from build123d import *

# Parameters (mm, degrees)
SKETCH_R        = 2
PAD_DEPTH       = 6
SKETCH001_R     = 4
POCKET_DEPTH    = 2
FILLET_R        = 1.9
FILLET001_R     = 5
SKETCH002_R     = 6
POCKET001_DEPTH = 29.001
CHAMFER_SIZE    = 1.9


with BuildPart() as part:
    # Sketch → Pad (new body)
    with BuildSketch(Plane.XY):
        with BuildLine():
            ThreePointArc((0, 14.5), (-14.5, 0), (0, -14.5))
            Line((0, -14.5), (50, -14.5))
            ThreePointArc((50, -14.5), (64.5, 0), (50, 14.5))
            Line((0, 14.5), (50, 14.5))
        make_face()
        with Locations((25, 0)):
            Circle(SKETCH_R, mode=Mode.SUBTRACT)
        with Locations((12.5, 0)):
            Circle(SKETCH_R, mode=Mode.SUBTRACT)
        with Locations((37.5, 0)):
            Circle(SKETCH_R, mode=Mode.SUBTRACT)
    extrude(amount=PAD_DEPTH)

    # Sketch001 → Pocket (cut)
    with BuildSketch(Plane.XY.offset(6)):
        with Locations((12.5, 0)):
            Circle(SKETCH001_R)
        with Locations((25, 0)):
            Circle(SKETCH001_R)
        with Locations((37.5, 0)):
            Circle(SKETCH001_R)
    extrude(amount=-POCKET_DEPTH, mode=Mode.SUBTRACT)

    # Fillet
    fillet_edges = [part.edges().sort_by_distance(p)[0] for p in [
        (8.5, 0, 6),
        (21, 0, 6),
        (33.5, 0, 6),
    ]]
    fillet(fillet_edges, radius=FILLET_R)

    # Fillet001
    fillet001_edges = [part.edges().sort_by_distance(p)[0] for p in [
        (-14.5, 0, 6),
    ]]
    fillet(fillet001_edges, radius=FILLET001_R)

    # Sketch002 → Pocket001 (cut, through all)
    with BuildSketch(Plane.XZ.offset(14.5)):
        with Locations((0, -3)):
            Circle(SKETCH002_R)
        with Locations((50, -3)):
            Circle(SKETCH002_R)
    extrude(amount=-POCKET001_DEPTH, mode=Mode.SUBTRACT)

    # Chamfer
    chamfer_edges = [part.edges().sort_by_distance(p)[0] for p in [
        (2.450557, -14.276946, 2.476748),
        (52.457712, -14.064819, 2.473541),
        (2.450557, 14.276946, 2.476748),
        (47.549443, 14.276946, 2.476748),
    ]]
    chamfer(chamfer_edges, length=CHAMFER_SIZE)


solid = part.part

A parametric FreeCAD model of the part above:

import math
import FreeCAD as App
import Part
import Sketcher

V = App.Vector
Q = App.Units.Quantity


def edges_at(feature, points):
    """Names of the edges that pass closest to the given points."""
    edges = feature.Shape.Edges
    near = lambda p: min(range(len(edges)), key=lambda i: edges[i].distToShape(Part.Vertex(*p))[0])
    return sorted({f"Edge{near(p) + 1}" for p in points})

doc = App.newDocument("Part")
body = doc.addObject("PartDesign::Body", "Body")

# Sketch on XY plane
sketch1 = body.newObject("Sketcher::SketchObject", "Sketch")
sketch1.AttachmentSupport = (doc.getObject("XY_Plane"), [""])
sketch1.MapMode = "FlatFace"
sketch1.addGeometry(Part.ArcOfCircle(Part.Circle(V(0, 0, 0), V(0, 0, 1), 14.5), math.radians(90), math.radians(270)), False)
sketch1.addGeometry(Part.LineSegment(V(0, -14.5, 0), V(50, -14.5, 0)), False)
sketch1.addGeometry(Part.ArcOfCircle(Part.Circle(V(50, 0, 0), V(0, 0, 1), 14.5), math.radians(-90), math.radians(90)), False)
sketch1.addGeometry(Part.LineSegment(V(50, 14.5, 0), V(0, 14.5, 0)), False)
sketch1.addGeometry(Part.Circle(V(12.5, 0, 0), V(0, 0, 1), 2), False)
sketch1.addGeometry(Part.Circle(V(25, 0, 0), V(0, 0, 1), 2), False)
sketch1.addGeometry(Part.Circle(V(37.5, 0, 0), V(0, 0, 1), 2), False)
sketch1.addConstraint(Sketcher.Constraint("Tangent", 0, 2, 1, 1))
sketch1.addConstraint(Sketcher.Constraint("Tangent", 1, 2, 2, 1))
sketch1.addConstraint(Sketcher.Constraint("Tangent", 2, 2, 3, 1))
sketch1.addConstraint(Sketcher.Constraint("Tangent", 3, 2, 0, 1))
sketch1.addConstraint(Sketcher.Constraint("Horizontal", 1))
sketch1.addConstraint(Sketcher.Constraint("Horizontal", 3))
sketch1.addConstraint(Sketcher.Constraint("Coincident", 0, 3, -1, 1))
sketch1.addConstraint(Sketcher.Constraint("Equal", 4, 5))
sketch1.addConstraint(Sketcher.Constraint("Equal", 5, 6))
sketch1.addConstraint(Sketcher.Constraint("PointOnObject", 4, 3, -1))
sketch1.addConstraint(Sketcher.Constraint("PointOnObject", 5, 3, -1))
sketch1.addConstraint(Sketcher.Constraint("PointOnObject", 6, 3, -1))
sketch1.addConstraint(Sketcher.Constraint("Diameter", 4, Q("4 mm")))
sketch1.addConstraint(Sketcher.Constraint("Radius", 0, Q("14.5 mm")))
sketch1.addConstraint(Sketcher.Constraint("DistanceX", 1, 1, 1, 2, Q("50 mm")))
sketch1.addConstraint(Sketcher.Constraint("DistanceX", -1, 1, 5, 3, Q("25 mm")))
sketch1.addConstraint(Sketcher.Constraint("DistanceX", 4, 3, 6, 3, Q("25 mm")))
sketch1.addConstraint(Sketcher.Constraint("DistanceX", -1, 1, 4, 3, Q("12.5 mm")))
pad1 = body.newObject("PartDesign::Pad", "Pad")
pad1.Profile = sketch1
pad1.Length = 6

# Sketch on XY plane
sketch2 = body.newObject("Sketcher::SketchObject", "Sketch001")
sketch2.AttachmentSupport = (doc.getObject("XY_Plane"), [""])
sketch2.MapMode = "FlatFace"
sketch2.AttachmentOffset = App.Placement(V(0, 0, 6), App.Rotation())
sketch2.addGeometry(Part.Circle(V(12.5, 0, 0), V(0, 0, 1), 4), False)
sketch2.addGeometry(Part.Circle(V(25, 0, 0), V(0, 0, 1), 4), False)
sketch2.addGeometry(Part.Circle(V(37.5, 0, 0), V(0, 0, 1), 4), False)
sketch2.addConstraint(Sketcher.Constraint("Equal", 0, 1))
sketch2.addConstraint(Sketcher.Constraint("Equal", 1, 2))
sketch2.addConstraint(Sketcher.Constraint("PointOnObject", 0, 3, -1))
sketch2.addConstraint(Sketcher.Constraint("PointOnObject", 1, 3, -1))
sketch2.addConstraint(Sketcher.Constraint("PointOnObject", 2, 3, -1))
sketch2.addConstraint(Sketcher.Constraint("Diameter", 0, Q("8 mm")))
sketch2.addConstraint(Sketcher.Constraint("DistanceX", -1, 1, 1, 3, Q("25 mm")))
sketch2.addConstraint(Sketcher.Constraint("DistanceX", 0, 3, 2, 3, Q("25 mm")))
sketch2.addConstraint(Sketcher.Constraint("DistanceX", -1, 1, 0, 3, Q("12.5 mm")))
pocket1 = body.newObject("PartDesign::Pocket", "Pocket")
pocket1.Profile = sketch2
pocket1.Length = 2
doc.recompute()

fillet = body.newObject("PartDesign::Fillet", "Fillet")
fillet.Base = (pocket1, edges_at(pocket1, [(8.5, 0, 6), (21, 0, 6), (33.5, 0, 6)]))
fillet.Radius = 1.9
doc.recompute()

fillet2 = body.newObject("PartDesign::Fillet", "Fillet001")
fillet2.Base = (fillet, edges_at(fillet, [(-14.5, 0, 6)]))
fillet2.Radius = 5

# Sketch on XZ plane
sketch3 = body.newObject("Sketcher::SketchObject", "Sketch002")
sketch3.AttachmentSupport = (doc.getObject("XZ_Plane"), [""])
sketch3.MapMode = "FlatFace"
sketch3.AttachmentOffset = App.Placement(V(0, 0, 14.5), App.Rotation())
sketch3.addGeometry(Part.Circle(V(0, -3, 0), V(0, 0, 1), 6), False)
sketch3.addGeometry(Part.Circle(V(50, -3, 0), V(0, 0, 1), 6), False)
sketch3.addConstraint(Sketcher.Constraint("Equal", 0, 1))
sketch3.addConstraint(Sketcher.Constraint("PointOnObject", 0, 3, -2))
sketch3.addConstraint(Sketcher.Constraint("Horizontal", 0, 3, 1, 3))
sketch3.addConstraint(Sketcher.Constraint("Diameter", 0, Q("12 mm")))
sketch3.addConstraint(Sketcher.Constraint("DistanceY", 0, 3, -1, 1, Q("3 mm")))
sketch3.addConstraint(Sketcher.Constraint("DistanceX", -1, 1, 1, 3, Q("50 mm")))
pocket2 = body.newObject("PartDesign::Pocket", "Pocket001")
pocket2.Profile = sketch3
pocket2.Type = "ThroughAll"
doc.recompute()

chamfer = body.newObject("PartDesign::Chamfer", "Chamfer")
chamfer.Base = (pocket2, edges_at(pocket2, [
    (2.451, -14.277, 2.477),
    (52.458, -14.065, 2.474),
    (2.451, 14.277, 2.477),
    (47.549, 14.277, 2.477),
]))
chamfer.Size = 1.9

doc.recompute()
